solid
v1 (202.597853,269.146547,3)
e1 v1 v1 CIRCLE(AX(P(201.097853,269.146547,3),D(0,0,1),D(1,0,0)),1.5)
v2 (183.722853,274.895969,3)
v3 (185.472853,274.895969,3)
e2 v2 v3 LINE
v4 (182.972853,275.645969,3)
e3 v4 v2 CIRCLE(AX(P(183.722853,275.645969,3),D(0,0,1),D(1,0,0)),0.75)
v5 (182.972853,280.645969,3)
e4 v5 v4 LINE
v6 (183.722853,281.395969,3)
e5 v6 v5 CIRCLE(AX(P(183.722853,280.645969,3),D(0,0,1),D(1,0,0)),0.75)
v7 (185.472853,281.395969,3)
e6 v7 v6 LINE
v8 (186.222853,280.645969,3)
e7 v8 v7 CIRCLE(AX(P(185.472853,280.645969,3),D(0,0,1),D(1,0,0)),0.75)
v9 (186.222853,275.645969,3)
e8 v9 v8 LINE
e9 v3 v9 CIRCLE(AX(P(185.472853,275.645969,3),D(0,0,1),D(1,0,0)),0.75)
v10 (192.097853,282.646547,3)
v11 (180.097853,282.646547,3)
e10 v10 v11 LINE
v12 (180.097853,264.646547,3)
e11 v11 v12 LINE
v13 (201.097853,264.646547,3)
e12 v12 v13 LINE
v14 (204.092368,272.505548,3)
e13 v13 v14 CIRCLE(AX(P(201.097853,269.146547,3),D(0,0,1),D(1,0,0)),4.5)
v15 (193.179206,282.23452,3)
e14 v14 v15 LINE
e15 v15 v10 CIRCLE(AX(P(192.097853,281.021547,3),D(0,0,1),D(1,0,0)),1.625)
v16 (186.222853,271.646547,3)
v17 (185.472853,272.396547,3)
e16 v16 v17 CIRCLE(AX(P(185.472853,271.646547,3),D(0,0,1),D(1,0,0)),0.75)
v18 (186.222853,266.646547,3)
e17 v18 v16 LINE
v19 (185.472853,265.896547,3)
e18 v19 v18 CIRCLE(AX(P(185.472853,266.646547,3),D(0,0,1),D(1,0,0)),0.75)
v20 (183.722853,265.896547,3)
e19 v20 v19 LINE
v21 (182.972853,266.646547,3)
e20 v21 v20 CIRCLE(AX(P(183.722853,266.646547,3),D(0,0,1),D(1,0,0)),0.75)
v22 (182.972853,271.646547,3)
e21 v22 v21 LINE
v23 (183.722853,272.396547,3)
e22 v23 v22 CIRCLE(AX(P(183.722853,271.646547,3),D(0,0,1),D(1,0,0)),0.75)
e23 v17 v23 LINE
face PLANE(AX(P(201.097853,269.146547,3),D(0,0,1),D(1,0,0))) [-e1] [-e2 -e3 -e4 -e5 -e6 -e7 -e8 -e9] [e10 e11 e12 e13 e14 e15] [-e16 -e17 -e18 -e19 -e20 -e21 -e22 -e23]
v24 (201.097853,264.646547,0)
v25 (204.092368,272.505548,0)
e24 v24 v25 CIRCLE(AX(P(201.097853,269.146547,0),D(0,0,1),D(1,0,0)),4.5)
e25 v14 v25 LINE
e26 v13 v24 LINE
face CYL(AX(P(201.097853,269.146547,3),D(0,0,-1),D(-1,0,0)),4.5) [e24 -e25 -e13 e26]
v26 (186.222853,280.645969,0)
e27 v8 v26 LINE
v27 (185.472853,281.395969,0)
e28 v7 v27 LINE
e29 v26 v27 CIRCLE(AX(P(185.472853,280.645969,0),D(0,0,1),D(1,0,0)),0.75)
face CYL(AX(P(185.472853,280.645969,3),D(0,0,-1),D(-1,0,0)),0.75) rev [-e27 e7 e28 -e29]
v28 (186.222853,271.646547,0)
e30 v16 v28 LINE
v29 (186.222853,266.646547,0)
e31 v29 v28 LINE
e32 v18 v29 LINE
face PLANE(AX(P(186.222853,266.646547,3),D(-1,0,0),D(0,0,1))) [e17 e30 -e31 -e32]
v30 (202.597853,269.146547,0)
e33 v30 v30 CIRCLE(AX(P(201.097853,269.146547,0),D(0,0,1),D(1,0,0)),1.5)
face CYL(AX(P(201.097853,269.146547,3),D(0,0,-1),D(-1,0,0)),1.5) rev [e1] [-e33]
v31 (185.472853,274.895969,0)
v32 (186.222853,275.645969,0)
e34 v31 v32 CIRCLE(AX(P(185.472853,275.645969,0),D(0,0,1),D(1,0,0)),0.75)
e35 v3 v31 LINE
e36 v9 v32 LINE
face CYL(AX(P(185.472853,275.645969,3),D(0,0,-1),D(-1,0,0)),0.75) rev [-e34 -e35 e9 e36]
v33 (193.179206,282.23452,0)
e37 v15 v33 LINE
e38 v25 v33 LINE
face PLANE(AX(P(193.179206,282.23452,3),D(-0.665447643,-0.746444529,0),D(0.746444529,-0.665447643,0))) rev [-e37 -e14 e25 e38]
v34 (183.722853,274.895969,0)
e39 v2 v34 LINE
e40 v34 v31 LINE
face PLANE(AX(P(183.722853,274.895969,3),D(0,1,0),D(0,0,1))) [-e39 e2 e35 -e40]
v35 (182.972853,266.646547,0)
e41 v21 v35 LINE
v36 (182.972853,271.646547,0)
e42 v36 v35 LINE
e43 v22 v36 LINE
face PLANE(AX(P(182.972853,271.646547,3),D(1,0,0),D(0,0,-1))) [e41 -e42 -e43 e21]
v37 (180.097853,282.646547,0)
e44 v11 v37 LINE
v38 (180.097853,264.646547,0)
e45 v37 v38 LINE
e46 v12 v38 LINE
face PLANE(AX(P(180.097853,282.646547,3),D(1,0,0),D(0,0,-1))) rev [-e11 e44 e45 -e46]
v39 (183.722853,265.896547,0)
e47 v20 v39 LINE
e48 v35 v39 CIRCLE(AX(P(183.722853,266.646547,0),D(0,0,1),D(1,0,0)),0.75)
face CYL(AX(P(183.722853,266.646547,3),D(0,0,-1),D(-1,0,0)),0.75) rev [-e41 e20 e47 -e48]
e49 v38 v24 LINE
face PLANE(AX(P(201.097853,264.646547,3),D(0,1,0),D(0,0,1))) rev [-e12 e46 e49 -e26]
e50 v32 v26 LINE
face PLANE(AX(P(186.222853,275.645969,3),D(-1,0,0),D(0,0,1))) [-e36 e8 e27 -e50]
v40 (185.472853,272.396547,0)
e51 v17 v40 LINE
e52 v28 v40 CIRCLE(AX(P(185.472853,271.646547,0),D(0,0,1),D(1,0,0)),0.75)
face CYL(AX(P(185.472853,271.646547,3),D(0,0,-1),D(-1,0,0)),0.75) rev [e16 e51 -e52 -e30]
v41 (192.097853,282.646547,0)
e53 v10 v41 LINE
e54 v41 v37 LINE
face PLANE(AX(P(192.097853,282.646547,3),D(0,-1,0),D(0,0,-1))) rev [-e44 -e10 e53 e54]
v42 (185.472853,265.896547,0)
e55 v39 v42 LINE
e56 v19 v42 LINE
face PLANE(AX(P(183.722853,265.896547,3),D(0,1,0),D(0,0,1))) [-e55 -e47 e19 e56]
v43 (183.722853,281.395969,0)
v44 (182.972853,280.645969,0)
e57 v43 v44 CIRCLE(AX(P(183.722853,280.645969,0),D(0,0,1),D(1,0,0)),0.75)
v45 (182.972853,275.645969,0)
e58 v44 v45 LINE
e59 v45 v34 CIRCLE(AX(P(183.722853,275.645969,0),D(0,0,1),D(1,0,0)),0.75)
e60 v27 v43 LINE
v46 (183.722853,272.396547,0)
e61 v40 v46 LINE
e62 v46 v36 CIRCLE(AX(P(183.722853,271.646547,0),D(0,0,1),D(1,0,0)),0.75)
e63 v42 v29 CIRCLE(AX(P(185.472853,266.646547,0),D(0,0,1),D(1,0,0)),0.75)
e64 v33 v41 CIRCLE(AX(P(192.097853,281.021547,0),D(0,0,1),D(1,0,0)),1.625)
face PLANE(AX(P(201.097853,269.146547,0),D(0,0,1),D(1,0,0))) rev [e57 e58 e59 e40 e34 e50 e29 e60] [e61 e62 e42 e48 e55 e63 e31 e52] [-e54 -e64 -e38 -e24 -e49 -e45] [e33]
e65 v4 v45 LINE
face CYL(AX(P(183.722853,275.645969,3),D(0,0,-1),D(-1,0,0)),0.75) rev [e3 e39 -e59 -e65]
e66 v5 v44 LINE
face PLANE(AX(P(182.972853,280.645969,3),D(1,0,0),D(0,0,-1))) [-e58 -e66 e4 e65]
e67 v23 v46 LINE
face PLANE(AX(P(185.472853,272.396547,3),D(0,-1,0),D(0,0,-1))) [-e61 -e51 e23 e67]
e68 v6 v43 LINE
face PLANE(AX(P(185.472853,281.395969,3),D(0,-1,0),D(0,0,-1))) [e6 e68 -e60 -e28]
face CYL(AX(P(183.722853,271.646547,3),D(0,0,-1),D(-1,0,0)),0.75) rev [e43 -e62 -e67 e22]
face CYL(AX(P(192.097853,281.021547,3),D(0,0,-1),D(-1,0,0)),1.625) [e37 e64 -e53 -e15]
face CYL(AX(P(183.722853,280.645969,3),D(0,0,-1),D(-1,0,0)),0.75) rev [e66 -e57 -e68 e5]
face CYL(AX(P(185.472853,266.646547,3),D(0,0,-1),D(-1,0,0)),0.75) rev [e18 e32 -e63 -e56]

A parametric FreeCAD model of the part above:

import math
import FreeCAD as App
import Part
import Sketcher

V = App.Vector

doc = App.newDocument("Part")
body = doc.addObject("PartDesign::Body", "Body")

# Sketch on XY plane
sketch1 = body.newObject("Sketcher::SketchObject", "Sketch")
sketch1.AttachmentSupport = (doc.getObject("XY_Plane"), [""])
sketch1.MapMode = "FlatFace"
sketch1.addGeometry(Part.LineSegment(V(180.1, 264.6, 0), V(201.1, 264.6, 0)), False)
sketch1.addGeometry(Part.ArcOfCircle(Part.Circle(V(201.1, 269.1, 0), V(0, 0, 1), 4.5), math.radians(-90), math.radians(48)), False)
sketch1.addGeometry(Part.LineSegment(V(204.1, 272.5, 0), V(193.2, 282.2, 0)), False)
sketch1.addGeometry(Part.ArcOfCircle(Part.Circle(V(192.1, 281, 0), V(0, 0, 1), 1.6), math.radians(48), math.radians(90)), False)
sketch1.addGeometry(Part.LineSegment(V(192.1, 282.6, 0), V(180.1, 282.6, 0)), False)
sketch1.addGeometry(Part.LineSegment(V(180.1, 282.6, 0), V(180.1, 264.6, 0)), False)
sketch1.addGeometry(Part.Circle(V(201.1, 269.1, 0), V(0, 0, 1), 1.5), False)
sketch1.addGeometry(Part.ArcOfCircle(Part.Circle(V(183.7, 266.6, 0), V(0, 0, 1), 0.8), math.radians(180), math.radians(270)), False)
sketch1.addGeometry(Part.LineSegment(V(183, 266.6, 0), V(183, 271.6, 0)), False)
sketch1.addGeometry(Part.ArcOfCircle(Part.Circle(V(183.7, 271.6, 0), V(0, 0, 1), 0.8), math.radians(90), math.radians(180)), False)
sketch1.addGeometry(Part.LineSegment(V(183.7, 272.4, 0), V(185.5, 272.4, 0)), False)
sketch1.addGeometry(Part.ArcOfCircle(Part.Circle(V(185.5, 271.6, 0), V(0, 0, 1), 0.8), math.radians(0), math.radians(90)), False)
sketch1.addGeometry(Part.LineSegment(V(186.2, 271.6, 0), V(186.2, 266.6, 0)), False)
sketch1.addGeometry(Part.ArcOfCircle(Part.Circle(V(185.5, 266.6, 0), V(0, 0, 1), 0.8), math.radians(-90), math.radians(0)), False)
sketch1.addGeometry(Part.LineSegment(V(185.5, 265.9, 0), V(183.7, 265.9, 0)), False)
sketch1.addGeometry(Part.ArcOfCircle(Part.Circle(V(183.7, 275.6, 0), V(0, 0, 1), 0.8), math.radians(180), math.radians(270)), False)
sketch1.addGeometry(Part.LineSegment(V(183, 275.6, 0), V(183, 280.6, 0)), False)
sketch1.addGeometry(Part.ArcOfCircle(Part.Circle(V(183.7, 280.6, 0), V(0, 0, 1), 0.8), math.radians(90), math.radians(180)), False)
sketch1.addGeometry(Part.LineSegment(V(183.7, 281.4, 0), V(185.5, 281.4, 0)), False)
sketch1.addGeometry(Part.ArcOfCircle(Part.Circle(V(185.5, 280.6, 0), V(0, 0, 1), 0.8), math.radians(0), math.radians(90)), False)
sketch1.addGeometry(Part.LineSegment(V(186.2, 280.6, 0), V(186.2, 275.6, 0)), False)
sketch1.addGeometry(Part.ArcOfCircle(Part.Circle(V(185.5, 275.6, 0), V(0, 0, 1), 0.8), math.radians(-90), math.radians(0)), False)
sketch1.addGeometry(Part.LineSegment(V(185.5, 274.9, 0), V(183.7, 274.9, 0)), False)
sketch1.addConstraint(Sketcher.Constraint("Tangent", 0, 2, 1, 1))
sketch1.addConstraint(Sketcher.Constraint("Tangent", 1, 2, 2, 1))
sketch1.addConstraint(Sketcher.Constraint("Tangent", 2, 2, 3, 1))
sketch1.addConstraint(Sketcher.Constraint("Tangent", 3, 2, 4, 1))
sketch1.addConstraint(Sketcher.Constraint("Coincident", 4, 2, 5, 1))
sketch1.addConstraint(Sketcher.Constraint("Coincident", 5, 2, 0, 1))
sketch1.addConstraint(Sketcher.Constraint("Tangent", 7, 1, 8, 1))
sketch1.addConstraint(Sketcher.Constraint("Tangent", 8, 2, 9, 2))
sketch1.addConstraint(Sketcher.Constraint("Tangent", 9, 1, 10, 1))
sketch1.addConstraint(Sketcher.Constraint("Tangent", 10, 2, 11, 2))
sketch1.addConstraint(Sketcher.Constraint("Tangent", 11, 1, 12, 1))
sketch1.addConstraint(Sketcher.Constraint("Tangent", 12, 2, 13, 2))
sketch1.addConstraint(Sketcher.Constraint("Tangent", 13, 1, 14, 1))
sketch1.addConstraint(Sketcher.Constraint("Tangent", 14, 2, 7, 2))
sketch1.addConstraint(Sketcher.Constraint("Tangent", 15, 1, 16, 1))
sketch1.addConstraint(Sketcher.Constraint("Tangent", 16, 2, 17, 2))
sketch1.addConstraint(Sketcher.Constraint("Tangent", 17, 1, 18, 1))
sketch1.addConstraint(Sketcher.Constraint("Tangent", 18, 2, 19, 2))
sketch1.addConstraint(Sketcher.Constraint("Tangent", 19, 1, 20, 1))
sketch1.addConstraint(Sketcher.Constraint("Tangent", 20, 2, 21, 2))
sketch1.addConstraint(Sketcher.Constraint("Tangent", 21, 1, 22, 1))
sketch1.addConstraint(Sketcher.Constraint("Tangent", 22, 2, 15, 2))
sketch1.addConstraint(Sketcher.Constraint("Horizontal", 0))
sketch1.addConstraint(Sketcher.Constraint("Horizontal", 4))
sketch1.addConstraint(Sketcher.Constraint("Vertical", 5))
sketch1.addConstraint(Sketcher.Constraint("Vertical", 8))
sketch1.addConstraint(Sketcher.Constraint("Horizontal", 10))
sketch1.addConstraint(Sketcher.Constraint("Vertical", 12))
sketch1.addConstraint(Sketcher.Constraint("Horizontal", 14))
sketch1.addConstraint(Sketcher.Constraint("Vertical", 16))
sketch1.addConstraint(Sketcher.Constraint("Horizontal", 18))
sketch1.addConstraint(Sketcher.Constraint("Vertical", 20))
sketch1.addConstraint(Sketcher.Constraint("Horizontal", 22))
sketch1.addConstraint(Sketcher.Constraint("Coincident", 6, 3, 1, 3))
sketch1.addConstraint(Sketcher.Constraint("Equal", 7, 9))
sketch1.addConstraint(Sketcher.Constraint("Equal", 9, 11))
sketch1.addConstraint(Sketcher.Constraint("Equal", 11, 13))
sketch1.addConstraint(Sketcher.Constraint("Equal", 13, 15))
sketch1.addConstraint(Sketcher.Constraint("Equal", 15, 17))
sketch1.addConstraint(Sketcher.Constraint("Equal", 17, 19))
sketch1.addConstraint(Sketcher.Constraint("Equal", 19, 21))
sketch1.addConstraint(Sketcher.Constraint("Vertical", 9, 3, 15, 3))
sketch1.addConstraint(Sketcher.Constraint("Vertical", 13, 3, 19, 3))
sketch1.addConstraint(Sketcher.Constraint("Equal", 12, 16))
sketch1.addConstraint(Sketcher.Constraint("Diameter", 6, 3.0))
sketch1.addConstraint(Sketcher.Constraint("Radius", 1, 4.5))
sketch1.addConstraint(Sketcher.Constraint("DistanceX", 0, 1, 0, 2, 21.0))
sketch1.addConstraint(Sketcher.Constraint("DistanceX", 4, 2, 4, 1, 12.0))
sketch1.addConstraint(Sketcher.Constraint("DistanceY", 5, 2, 5, 1, 18.0))
sketch1.addConstraint(Sketcher.Constraint("DistanceY", 8, 1, 8, 2, 5.0))
sketch1.addConstraint(Sketcher.Constraint("Radius", 7, 0.75))
sketch1.addConstraint(Sketcher.Constraint("Radius", 3, 1.625))
sketch1.addConstraint(Sketcher.Constraint("DistanceY", 0, 2, 13, 3, 2.0))
sketch1.addConstraint(Sketcher.Constraint("DistanceX", 10, 1, 10, 2, 1.75))
sketch1.addConstraint(Sketcher.Constraint("DistanceX", 7, 3, 3, 3, 8.375))
sketch1.addConstraint(Sketcher.Constraint("DistanceY", -1, 1, 15, 3, 275.645969))
sketch1.addConstraint(Sketcher.Constraint("DistanceY", -1, 1, 2, 2, 282.23452))
sketch1.addConstraint(Sketcher.Constraint("DistanceX", -1, 1, 1, 3, 201.097853))
pad1 = body.newObject("PartDesign::Pad", "Pad")
pad1.Profile = sketch1
pad1.Length = 3

doc.recompute()
